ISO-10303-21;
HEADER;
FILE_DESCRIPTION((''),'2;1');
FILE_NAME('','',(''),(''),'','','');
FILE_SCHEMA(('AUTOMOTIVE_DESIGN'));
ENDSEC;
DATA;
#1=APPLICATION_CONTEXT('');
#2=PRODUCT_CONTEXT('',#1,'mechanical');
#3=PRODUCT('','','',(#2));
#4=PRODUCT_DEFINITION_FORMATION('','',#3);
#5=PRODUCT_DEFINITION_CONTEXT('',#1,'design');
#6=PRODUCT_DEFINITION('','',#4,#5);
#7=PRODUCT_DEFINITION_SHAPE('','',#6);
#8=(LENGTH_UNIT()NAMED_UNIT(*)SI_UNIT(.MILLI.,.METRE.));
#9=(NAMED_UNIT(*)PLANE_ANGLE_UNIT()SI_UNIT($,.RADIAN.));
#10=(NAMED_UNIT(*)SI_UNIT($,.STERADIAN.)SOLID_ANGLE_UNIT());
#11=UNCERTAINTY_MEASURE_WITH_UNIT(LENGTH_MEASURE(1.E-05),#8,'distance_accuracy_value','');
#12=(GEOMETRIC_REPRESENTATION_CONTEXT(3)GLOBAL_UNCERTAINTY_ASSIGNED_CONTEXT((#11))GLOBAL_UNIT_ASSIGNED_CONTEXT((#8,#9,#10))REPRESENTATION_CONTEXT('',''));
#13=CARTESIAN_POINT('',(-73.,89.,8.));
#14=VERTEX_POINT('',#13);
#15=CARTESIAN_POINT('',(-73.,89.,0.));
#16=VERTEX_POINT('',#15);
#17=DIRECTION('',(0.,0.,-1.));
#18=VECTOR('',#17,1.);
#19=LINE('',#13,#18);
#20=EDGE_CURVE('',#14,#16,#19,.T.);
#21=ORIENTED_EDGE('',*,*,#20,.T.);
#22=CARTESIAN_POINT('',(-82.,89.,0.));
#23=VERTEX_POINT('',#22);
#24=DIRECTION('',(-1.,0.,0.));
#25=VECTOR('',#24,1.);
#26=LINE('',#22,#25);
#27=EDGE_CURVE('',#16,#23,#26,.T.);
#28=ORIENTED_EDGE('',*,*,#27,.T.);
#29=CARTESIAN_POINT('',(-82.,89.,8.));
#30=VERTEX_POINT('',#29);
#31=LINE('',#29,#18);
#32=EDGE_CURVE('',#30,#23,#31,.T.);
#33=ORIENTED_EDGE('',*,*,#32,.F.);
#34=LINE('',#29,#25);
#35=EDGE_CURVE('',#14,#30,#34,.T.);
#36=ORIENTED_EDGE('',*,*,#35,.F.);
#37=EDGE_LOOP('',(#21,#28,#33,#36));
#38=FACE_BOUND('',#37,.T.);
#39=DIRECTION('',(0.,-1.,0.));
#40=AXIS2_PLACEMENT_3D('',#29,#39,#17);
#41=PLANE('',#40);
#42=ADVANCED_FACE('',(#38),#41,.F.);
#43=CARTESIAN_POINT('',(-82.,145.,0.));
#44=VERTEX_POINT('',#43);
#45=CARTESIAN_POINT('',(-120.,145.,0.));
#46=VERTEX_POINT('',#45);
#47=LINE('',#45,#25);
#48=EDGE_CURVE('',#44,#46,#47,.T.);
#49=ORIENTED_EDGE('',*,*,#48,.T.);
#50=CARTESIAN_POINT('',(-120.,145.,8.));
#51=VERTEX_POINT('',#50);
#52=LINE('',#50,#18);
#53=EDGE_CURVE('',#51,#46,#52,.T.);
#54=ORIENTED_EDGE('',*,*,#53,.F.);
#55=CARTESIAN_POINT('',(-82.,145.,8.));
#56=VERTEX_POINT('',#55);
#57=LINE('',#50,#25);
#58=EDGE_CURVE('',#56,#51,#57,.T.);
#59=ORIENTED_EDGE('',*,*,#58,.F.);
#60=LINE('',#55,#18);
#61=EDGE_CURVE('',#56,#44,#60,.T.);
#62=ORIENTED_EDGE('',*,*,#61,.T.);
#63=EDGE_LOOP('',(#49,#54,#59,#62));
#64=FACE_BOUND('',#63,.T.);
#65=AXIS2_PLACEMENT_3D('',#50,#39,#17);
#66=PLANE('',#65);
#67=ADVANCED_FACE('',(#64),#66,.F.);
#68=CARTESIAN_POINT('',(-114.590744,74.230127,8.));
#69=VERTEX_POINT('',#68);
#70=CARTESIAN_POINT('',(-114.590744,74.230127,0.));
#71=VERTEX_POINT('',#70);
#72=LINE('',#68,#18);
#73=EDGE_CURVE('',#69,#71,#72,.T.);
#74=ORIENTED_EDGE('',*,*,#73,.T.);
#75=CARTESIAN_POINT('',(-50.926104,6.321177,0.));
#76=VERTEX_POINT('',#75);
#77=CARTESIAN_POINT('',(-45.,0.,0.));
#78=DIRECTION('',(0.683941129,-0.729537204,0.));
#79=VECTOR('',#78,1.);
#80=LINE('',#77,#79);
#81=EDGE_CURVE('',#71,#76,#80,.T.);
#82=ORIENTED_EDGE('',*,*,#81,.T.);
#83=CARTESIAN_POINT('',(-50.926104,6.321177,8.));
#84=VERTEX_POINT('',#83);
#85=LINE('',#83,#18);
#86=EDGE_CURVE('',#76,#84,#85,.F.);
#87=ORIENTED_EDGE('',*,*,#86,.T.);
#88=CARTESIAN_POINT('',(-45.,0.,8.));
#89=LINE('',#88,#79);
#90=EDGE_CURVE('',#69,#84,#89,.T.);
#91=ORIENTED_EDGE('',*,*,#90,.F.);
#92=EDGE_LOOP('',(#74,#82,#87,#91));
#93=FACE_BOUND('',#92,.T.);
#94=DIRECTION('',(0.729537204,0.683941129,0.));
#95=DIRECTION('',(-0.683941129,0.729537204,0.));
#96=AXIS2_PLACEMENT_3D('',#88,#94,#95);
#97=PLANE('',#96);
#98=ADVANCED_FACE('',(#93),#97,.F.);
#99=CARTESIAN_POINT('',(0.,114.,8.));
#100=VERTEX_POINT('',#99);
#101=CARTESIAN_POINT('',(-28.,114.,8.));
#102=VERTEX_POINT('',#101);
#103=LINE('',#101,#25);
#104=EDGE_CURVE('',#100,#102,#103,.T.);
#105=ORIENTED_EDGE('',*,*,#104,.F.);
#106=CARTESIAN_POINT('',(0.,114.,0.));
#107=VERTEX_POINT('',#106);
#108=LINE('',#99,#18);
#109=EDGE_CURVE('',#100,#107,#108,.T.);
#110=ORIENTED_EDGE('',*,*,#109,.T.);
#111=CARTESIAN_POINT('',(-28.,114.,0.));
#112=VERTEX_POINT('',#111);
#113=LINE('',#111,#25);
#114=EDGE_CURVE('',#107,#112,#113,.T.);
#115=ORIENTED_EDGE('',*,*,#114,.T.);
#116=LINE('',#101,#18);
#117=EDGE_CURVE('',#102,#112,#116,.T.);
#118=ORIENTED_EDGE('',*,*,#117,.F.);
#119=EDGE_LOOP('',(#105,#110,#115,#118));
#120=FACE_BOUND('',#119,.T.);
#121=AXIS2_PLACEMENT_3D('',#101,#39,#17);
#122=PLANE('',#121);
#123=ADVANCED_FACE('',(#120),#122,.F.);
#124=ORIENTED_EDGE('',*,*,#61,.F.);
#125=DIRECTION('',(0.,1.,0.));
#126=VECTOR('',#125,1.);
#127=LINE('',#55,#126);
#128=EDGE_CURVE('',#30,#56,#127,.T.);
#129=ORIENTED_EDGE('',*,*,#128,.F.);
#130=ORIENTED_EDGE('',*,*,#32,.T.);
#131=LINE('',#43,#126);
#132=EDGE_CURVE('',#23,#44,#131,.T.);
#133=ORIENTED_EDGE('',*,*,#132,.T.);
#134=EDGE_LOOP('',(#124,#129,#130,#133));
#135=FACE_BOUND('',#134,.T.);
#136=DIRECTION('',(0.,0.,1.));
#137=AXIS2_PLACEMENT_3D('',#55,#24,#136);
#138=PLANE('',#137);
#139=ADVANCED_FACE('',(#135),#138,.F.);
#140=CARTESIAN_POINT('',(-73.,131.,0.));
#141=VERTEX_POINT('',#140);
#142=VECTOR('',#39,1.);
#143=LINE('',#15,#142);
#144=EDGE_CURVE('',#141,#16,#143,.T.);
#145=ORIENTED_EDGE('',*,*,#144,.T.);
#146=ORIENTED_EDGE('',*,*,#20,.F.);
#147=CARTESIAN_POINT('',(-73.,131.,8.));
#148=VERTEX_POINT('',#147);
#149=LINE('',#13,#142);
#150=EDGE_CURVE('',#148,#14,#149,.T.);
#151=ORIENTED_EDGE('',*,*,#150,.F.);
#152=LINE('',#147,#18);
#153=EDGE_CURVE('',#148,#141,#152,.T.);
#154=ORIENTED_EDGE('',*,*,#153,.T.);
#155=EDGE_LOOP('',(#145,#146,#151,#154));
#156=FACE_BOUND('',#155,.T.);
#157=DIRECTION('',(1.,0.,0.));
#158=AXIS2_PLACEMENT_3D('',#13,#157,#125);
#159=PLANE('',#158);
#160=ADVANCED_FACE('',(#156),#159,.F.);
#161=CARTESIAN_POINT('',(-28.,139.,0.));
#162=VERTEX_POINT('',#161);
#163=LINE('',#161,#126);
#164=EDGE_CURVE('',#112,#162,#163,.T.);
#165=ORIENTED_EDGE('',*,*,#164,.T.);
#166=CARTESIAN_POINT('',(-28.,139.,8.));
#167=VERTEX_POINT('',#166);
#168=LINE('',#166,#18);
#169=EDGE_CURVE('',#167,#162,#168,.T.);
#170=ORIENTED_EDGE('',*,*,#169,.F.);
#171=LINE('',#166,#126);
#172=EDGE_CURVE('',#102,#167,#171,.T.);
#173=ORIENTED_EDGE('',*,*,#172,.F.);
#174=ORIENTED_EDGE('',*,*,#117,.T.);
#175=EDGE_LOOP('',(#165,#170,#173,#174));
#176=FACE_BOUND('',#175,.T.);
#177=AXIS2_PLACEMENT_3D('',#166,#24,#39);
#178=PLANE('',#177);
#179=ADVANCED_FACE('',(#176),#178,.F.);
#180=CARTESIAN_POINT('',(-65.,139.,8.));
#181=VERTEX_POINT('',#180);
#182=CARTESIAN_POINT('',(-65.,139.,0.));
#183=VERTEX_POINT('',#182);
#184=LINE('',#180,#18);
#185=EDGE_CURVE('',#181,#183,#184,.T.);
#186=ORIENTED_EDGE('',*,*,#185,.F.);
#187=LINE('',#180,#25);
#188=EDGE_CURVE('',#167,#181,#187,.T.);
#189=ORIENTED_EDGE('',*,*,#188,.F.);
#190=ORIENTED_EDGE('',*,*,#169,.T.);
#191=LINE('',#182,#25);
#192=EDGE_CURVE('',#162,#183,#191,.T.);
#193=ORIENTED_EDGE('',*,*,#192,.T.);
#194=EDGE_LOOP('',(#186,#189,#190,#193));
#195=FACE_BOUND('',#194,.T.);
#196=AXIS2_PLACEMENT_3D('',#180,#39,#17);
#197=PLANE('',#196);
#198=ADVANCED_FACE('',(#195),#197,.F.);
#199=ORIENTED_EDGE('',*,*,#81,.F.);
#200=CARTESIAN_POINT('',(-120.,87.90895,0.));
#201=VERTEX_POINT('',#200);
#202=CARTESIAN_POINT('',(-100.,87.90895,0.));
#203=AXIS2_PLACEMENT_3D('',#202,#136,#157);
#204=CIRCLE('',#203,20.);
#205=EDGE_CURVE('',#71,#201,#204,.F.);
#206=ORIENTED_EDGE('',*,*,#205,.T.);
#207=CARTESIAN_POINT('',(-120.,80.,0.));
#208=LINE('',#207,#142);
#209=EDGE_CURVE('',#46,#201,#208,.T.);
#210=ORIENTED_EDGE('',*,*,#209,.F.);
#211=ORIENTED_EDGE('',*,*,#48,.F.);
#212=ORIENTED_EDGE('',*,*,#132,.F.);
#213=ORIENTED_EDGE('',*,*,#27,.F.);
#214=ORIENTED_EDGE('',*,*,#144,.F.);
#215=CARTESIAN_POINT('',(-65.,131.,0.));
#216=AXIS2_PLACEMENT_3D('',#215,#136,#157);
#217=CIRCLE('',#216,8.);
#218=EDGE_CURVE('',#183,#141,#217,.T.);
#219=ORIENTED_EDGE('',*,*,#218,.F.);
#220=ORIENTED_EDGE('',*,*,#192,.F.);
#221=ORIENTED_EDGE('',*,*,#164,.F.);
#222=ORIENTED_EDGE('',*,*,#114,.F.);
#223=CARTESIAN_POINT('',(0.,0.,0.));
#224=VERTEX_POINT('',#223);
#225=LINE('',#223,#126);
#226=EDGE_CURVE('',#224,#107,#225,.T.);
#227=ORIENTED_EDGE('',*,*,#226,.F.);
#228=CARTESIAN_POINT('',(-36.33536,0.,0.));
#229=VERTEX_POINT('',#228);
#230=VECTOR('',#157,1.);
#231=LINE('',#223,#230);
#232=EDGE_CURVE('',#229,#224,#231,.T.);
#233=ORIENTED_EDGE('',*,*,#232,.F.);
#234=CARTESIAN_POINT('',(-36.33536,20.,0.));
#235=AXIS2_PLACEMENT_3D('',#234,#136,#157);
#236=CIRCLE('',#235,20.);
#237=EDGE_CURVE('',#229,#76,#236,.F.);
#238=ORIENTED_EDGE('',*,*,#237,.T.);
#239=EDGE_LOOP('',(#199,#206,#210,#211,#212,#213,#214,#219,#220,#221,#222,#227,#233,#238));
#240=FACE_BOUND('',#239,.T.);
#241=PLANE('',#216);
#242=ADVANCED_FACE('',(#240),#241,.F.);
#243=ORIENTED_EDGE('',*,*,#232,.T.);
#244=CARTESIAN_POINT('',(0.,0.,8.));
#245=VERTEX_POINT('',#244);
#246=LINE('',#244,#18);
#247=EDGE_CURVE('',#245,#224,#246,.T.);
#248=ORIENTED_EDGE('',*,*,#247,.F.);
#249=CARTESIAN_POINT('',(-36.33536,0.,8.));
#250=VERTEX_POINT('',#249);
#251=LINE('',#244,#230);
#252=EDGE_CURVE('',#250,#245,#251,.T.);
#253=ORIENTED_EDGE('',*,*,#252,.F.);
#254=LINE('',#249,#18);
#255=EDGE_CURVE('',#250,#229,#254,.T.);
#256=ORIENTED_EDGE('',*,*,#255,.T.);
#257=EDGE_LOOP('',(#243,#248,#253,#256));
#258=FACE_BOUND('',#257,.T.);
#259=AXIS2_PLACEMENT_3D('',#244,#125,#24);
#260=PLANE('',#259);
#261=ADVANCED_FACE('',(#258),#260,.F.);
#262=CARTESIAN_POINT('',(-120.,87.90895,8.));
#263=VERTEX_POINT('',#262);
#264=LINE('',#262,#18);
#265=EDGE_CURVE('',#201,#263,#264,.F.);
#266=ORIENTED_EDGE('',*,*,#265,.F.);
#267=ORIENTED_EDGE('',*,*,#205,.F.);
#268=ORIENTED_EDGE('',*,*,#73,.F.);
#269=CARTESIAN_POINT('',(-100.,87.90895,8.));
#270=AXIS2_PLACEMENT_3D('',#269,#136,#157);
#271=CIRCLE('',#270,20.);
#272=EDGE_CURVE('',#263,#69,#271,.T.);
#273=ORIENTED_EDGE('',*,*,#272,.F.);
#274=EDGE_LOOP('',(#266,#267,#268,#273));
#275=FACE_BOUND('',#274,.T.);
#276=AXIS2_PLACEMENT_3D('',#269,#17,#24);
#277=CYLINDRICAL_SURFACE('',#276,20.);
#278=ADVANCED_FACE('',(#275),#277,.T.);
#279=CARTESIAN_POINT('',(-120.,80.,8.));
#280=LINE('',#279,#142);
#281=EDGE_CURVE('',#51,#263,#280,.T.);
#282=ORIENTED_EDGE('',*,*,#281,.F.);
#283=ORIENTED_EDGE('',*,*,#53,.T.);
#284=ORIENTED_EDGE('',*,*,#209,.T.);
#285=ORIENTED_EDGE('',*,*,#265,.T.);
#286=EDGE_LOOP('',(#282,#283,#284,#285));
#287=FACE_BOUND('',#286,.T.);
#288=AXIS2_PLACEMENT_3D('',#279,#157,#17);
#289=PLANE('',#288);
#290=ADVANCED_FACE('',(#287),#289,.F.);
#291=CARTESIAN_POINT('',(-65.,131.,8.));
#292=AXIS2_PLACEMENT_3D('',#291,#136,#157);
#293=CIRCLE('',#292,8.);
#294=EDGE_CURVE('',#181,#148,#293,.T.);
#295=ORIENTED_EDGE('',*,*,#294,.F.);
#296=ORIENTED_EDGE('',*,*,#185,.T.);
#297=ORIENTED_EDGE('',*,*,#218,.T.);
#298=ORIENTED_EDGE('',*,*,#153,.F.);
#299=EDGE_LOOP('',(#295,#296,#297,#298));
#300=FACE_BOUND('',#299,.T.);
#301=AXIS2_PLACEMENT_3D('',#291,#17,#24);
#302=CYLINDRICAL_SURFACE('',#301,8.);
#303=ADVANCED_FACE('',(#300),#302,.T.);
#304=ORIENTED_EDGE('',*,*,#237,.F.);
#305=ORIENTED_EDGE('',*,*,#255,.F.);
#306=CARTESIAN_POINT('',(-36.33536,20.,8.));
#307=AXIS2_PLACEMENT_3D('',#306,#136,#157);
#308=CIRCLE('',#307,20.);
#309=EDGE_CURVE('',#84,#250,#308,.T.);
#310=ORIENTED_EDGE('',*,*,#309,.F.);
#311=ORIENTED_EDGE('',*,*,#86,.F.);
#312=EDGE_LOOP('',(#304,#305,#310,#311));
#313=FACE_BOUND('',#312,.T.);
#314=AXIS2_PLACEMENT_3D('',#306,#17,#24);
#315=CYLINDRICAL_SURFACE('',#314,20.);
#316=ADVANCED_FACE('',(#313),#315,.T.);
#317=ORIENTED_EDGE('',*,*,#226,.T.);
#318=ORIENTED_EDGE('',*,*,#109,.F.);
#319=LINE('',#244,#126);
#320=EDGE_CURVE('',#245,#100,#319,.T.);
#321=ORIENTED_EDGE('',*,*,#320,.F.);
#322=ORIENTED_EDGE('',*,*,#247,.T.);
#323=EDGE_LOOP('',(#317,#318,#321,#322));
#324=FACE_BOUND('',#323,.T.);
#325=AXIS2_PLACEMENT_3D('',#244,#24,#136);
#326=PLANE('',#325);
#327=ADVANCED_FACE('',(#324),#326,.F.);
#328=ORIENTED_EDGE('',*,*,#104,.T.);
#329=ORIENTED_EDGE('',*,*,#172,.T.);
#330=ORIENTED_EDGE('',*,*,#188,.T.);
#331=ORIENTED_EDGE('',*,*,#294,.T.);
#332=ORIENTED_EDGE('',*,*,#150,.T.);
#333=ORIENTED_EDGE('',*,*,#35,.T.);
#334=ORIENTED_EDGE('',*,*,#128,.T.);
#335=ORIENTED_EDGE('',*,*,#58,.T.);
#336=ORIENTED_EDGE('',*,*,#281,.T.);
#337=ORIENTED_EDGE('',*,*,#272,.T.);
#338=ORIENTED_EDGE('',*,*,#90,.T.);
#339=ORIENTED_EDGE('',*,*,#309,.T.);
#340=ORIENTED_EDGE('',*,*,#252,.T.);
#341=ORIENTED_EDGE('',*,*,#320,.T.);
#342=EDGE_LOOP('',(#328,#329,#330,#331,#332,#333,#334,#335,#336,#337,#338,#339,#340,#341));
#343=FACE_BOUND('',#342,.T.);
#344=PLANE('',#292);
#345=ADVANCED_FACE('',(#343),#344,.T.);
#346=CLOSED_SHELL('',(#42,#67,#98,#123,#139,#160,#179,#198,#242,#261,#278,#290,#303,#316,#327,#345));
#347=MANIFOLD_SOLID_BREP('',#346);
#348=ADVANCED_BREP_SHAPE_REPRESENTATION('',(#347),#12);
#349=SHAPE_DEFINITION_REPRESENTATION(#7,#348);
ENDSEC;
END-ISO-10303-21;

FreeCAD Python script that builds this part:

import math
import FreeCAD as App
import Part
import Sketcher

V = App.Vector


def edges_at(feature, points):
    """Names of the edges that pass closest to the given points."""
    edges = feature.Shape.Edges
    near = lambda p: min(range(len(edges)), key=lambda i: edges[i].distToShape(Part.Vertex(*p))[0])
    return sorted({f"Edge{near(p) + 1}" for p in points})

doc = App.newDocument("Part")
body = doc.addObject("PartDesign::Body", "Body")

# Sketch on XY plane
sketch1 = doc.addObject("Sketcher::SketchObject", "Sketch")
body.addObject(sketch1)
sketch1.AttachmentSupport = (doc.XY_Plane, [""])
sketch1.MapMode = "FlatFace"
sketch1.addGeometry(Part.LineSegment(V(0, 0, 0), V(0, 114, 0)), False)
sketch1.addGeometry(Part.LineSegment(V(0, 114, 0), V(-28, 114, 0)), False)
sketch1.addGeometry(Part.LineSegment(V(-28, 114, 0), V(-28, 139, 0)), False)
sketch1.addGeometry(Part.LineSegment(V(-28, 139, 0), V(-65, 139, 0)), False)
sketch1.addGeometry(Part.ArcOfCircle(Part.Circle(V(-65, 131, 0), V(0, 0, 1), 8), math.radians(90), math.radians(180)), False)
sketch1.addGeometry(Part.LineSegment(V(-73, 131, 0), V(-73, 89, 0)), False)
sketch1.addGeometry(Part.LineSegment(V(-73, 89, 0), V(-82, 89, 0)), False)
sketch1.addGeometry(Part.LineSegment(V(-82, 89, 0), V(-82, 145, 0)), False)
sketch1.addGeometry(Part.LineSegment(V(-82, 145, 0), V(-120, 145, 0)), False)
sketch1.addGeometry(Part.LineSegment(V(-120, 145, 0), V(-120, 80, 0)), False)
sketch1.addGeometry(Part.LineSegment(V(-120, 80, 0), V(-45, 0, 0)), False)
sketch1.addGeometry(Part.LineSegment(V(-45, 0, 0), V(0, 0, 0)), False)
sketch1.addConstraint(Sketcher.Constraint("Coincident", 0, 2, 1, 1))
sketch1.addConstraint(Sketcher.Constraint("Coincident", 1, 2, 2, 1))
sketch1.addConstraint(Sketcher.Constraint("Coincident", 2, 2, 3, 1))
sketch1.addConstraint(Sketcher.Constraint("Tangent", 3, 2, 4, 1))
sketch1.addConstraint(Sketcher.Constraint("Tangent", 4, 2, 5, 1))
sketch1.addConstraint(Sketcher.Constraint("Coincident", 5, 2, 6, 1))
sketch1.addConstraint(Sketcher.Constraint("Coincident", 6, 2, 7, 1))
sketch1.addConstraint(Sketcher.Constraint("Coincident", 7, 2, 8, 1))
sketch1.addConstraint(Sketcher.Constraint("Coincident", 8, 2, 9, 1))
sketch1.addConstraint(Sketcher.Constraint("Coincident", 9, 2, 10, 1))
sketch1.addConstraint(Sketcher.Constraint("Coincident", 10, 2, 11, 1))
sketch1.addConstraint(Sketcher.Constraint("Coincident", 11, 2, 0, 1))
sketch1.addConstraint(Sketcher.Constraint("Vertical", 0))
sketch1.addConstraint(Sketcher.Constraint("Horizontal", 1))
sketch1.addConstraint(Sketcher.Constraint("Vertical", 2))
sketch1.addConstraint(Sketcher.Constraint("Horizontal", 3))
sketch1.addConstraint(Sketcher.Constraint("Vertical", 5))
sketch1.addConstraint(Sketcher.Constraint("Horizontal", 6))
sketch1.addConstraint(Sketcher.Constraint("Vertical", 7))
sketch1.addConstraint(Sketcher.Constraint("Horizontal", 8))
sketch1.addConstraint(Sketcher.Constraint("Vertical", 9))
sketch1.addConstraint(Sketcher.Constraint("Horizontal", 11))
sketch1.addConstraint(Sketcher.Constraint("Coincident", 11, 2, -1, 1))
sketch1.addConstraint(Sketcher.Constraint("Radius", 4, 8.0))
sketch1.addConstraint(Sketcher.Constraint("DistanceX", 1, 2, 1, 1, 28.0))
sketch1.addConstraint(Sketcher.Constraint("DistanceX", 3, 2, 3, 1, 37.0))
sketch1.addConstraint(Sketcher.Constraint("DistanceX", 6, 2, 6, 1, 9.0))
sketch1.addConstraint(Sketcher.Constraint("DistanceX", 8, 2, 8, 1, 38.0))
sketch1.addConstraint(Sketcher.Constraint("DistanceX", 11, 1, 11, 2, 45.0))
sketch1.addConstraint(Sketcher.Constraint("DistanceY", 0, 1, 0, 2, 114.0))
sketch1.addConstraint(Sketcher.Constraint("DistanceY", 2, 1, 2, 2, 25.0))
sketch1.addConstraint(Sketcher.Constraint("DistanceY", 5, 2, 5, 1, 42.0))
sketch1.addConstraint(Sketcher.Constraint("DistanceY", 7, 1, 7, 2, 56.0))
sketch1.addConstraint(Sketcher.Constraint("DistanceY", 9, 2, 9, 1, 65.0))
pad1 = doc.addObject("PartDesign::Pad", "Pad")
body.addObject(pad1)
pad1.Profile = sketch1
pad1.Length = 8
doc.recompute()

fillet = doc.addObject("PartDesign::Fillet", "Fillet")
body.addObject(fillet)
fillet.Base = (pad1, edges_at(pad1, [(-45, 0, 4), (-120, 80, 4)]))
fillet.Radius = 20

doc.recompute()
